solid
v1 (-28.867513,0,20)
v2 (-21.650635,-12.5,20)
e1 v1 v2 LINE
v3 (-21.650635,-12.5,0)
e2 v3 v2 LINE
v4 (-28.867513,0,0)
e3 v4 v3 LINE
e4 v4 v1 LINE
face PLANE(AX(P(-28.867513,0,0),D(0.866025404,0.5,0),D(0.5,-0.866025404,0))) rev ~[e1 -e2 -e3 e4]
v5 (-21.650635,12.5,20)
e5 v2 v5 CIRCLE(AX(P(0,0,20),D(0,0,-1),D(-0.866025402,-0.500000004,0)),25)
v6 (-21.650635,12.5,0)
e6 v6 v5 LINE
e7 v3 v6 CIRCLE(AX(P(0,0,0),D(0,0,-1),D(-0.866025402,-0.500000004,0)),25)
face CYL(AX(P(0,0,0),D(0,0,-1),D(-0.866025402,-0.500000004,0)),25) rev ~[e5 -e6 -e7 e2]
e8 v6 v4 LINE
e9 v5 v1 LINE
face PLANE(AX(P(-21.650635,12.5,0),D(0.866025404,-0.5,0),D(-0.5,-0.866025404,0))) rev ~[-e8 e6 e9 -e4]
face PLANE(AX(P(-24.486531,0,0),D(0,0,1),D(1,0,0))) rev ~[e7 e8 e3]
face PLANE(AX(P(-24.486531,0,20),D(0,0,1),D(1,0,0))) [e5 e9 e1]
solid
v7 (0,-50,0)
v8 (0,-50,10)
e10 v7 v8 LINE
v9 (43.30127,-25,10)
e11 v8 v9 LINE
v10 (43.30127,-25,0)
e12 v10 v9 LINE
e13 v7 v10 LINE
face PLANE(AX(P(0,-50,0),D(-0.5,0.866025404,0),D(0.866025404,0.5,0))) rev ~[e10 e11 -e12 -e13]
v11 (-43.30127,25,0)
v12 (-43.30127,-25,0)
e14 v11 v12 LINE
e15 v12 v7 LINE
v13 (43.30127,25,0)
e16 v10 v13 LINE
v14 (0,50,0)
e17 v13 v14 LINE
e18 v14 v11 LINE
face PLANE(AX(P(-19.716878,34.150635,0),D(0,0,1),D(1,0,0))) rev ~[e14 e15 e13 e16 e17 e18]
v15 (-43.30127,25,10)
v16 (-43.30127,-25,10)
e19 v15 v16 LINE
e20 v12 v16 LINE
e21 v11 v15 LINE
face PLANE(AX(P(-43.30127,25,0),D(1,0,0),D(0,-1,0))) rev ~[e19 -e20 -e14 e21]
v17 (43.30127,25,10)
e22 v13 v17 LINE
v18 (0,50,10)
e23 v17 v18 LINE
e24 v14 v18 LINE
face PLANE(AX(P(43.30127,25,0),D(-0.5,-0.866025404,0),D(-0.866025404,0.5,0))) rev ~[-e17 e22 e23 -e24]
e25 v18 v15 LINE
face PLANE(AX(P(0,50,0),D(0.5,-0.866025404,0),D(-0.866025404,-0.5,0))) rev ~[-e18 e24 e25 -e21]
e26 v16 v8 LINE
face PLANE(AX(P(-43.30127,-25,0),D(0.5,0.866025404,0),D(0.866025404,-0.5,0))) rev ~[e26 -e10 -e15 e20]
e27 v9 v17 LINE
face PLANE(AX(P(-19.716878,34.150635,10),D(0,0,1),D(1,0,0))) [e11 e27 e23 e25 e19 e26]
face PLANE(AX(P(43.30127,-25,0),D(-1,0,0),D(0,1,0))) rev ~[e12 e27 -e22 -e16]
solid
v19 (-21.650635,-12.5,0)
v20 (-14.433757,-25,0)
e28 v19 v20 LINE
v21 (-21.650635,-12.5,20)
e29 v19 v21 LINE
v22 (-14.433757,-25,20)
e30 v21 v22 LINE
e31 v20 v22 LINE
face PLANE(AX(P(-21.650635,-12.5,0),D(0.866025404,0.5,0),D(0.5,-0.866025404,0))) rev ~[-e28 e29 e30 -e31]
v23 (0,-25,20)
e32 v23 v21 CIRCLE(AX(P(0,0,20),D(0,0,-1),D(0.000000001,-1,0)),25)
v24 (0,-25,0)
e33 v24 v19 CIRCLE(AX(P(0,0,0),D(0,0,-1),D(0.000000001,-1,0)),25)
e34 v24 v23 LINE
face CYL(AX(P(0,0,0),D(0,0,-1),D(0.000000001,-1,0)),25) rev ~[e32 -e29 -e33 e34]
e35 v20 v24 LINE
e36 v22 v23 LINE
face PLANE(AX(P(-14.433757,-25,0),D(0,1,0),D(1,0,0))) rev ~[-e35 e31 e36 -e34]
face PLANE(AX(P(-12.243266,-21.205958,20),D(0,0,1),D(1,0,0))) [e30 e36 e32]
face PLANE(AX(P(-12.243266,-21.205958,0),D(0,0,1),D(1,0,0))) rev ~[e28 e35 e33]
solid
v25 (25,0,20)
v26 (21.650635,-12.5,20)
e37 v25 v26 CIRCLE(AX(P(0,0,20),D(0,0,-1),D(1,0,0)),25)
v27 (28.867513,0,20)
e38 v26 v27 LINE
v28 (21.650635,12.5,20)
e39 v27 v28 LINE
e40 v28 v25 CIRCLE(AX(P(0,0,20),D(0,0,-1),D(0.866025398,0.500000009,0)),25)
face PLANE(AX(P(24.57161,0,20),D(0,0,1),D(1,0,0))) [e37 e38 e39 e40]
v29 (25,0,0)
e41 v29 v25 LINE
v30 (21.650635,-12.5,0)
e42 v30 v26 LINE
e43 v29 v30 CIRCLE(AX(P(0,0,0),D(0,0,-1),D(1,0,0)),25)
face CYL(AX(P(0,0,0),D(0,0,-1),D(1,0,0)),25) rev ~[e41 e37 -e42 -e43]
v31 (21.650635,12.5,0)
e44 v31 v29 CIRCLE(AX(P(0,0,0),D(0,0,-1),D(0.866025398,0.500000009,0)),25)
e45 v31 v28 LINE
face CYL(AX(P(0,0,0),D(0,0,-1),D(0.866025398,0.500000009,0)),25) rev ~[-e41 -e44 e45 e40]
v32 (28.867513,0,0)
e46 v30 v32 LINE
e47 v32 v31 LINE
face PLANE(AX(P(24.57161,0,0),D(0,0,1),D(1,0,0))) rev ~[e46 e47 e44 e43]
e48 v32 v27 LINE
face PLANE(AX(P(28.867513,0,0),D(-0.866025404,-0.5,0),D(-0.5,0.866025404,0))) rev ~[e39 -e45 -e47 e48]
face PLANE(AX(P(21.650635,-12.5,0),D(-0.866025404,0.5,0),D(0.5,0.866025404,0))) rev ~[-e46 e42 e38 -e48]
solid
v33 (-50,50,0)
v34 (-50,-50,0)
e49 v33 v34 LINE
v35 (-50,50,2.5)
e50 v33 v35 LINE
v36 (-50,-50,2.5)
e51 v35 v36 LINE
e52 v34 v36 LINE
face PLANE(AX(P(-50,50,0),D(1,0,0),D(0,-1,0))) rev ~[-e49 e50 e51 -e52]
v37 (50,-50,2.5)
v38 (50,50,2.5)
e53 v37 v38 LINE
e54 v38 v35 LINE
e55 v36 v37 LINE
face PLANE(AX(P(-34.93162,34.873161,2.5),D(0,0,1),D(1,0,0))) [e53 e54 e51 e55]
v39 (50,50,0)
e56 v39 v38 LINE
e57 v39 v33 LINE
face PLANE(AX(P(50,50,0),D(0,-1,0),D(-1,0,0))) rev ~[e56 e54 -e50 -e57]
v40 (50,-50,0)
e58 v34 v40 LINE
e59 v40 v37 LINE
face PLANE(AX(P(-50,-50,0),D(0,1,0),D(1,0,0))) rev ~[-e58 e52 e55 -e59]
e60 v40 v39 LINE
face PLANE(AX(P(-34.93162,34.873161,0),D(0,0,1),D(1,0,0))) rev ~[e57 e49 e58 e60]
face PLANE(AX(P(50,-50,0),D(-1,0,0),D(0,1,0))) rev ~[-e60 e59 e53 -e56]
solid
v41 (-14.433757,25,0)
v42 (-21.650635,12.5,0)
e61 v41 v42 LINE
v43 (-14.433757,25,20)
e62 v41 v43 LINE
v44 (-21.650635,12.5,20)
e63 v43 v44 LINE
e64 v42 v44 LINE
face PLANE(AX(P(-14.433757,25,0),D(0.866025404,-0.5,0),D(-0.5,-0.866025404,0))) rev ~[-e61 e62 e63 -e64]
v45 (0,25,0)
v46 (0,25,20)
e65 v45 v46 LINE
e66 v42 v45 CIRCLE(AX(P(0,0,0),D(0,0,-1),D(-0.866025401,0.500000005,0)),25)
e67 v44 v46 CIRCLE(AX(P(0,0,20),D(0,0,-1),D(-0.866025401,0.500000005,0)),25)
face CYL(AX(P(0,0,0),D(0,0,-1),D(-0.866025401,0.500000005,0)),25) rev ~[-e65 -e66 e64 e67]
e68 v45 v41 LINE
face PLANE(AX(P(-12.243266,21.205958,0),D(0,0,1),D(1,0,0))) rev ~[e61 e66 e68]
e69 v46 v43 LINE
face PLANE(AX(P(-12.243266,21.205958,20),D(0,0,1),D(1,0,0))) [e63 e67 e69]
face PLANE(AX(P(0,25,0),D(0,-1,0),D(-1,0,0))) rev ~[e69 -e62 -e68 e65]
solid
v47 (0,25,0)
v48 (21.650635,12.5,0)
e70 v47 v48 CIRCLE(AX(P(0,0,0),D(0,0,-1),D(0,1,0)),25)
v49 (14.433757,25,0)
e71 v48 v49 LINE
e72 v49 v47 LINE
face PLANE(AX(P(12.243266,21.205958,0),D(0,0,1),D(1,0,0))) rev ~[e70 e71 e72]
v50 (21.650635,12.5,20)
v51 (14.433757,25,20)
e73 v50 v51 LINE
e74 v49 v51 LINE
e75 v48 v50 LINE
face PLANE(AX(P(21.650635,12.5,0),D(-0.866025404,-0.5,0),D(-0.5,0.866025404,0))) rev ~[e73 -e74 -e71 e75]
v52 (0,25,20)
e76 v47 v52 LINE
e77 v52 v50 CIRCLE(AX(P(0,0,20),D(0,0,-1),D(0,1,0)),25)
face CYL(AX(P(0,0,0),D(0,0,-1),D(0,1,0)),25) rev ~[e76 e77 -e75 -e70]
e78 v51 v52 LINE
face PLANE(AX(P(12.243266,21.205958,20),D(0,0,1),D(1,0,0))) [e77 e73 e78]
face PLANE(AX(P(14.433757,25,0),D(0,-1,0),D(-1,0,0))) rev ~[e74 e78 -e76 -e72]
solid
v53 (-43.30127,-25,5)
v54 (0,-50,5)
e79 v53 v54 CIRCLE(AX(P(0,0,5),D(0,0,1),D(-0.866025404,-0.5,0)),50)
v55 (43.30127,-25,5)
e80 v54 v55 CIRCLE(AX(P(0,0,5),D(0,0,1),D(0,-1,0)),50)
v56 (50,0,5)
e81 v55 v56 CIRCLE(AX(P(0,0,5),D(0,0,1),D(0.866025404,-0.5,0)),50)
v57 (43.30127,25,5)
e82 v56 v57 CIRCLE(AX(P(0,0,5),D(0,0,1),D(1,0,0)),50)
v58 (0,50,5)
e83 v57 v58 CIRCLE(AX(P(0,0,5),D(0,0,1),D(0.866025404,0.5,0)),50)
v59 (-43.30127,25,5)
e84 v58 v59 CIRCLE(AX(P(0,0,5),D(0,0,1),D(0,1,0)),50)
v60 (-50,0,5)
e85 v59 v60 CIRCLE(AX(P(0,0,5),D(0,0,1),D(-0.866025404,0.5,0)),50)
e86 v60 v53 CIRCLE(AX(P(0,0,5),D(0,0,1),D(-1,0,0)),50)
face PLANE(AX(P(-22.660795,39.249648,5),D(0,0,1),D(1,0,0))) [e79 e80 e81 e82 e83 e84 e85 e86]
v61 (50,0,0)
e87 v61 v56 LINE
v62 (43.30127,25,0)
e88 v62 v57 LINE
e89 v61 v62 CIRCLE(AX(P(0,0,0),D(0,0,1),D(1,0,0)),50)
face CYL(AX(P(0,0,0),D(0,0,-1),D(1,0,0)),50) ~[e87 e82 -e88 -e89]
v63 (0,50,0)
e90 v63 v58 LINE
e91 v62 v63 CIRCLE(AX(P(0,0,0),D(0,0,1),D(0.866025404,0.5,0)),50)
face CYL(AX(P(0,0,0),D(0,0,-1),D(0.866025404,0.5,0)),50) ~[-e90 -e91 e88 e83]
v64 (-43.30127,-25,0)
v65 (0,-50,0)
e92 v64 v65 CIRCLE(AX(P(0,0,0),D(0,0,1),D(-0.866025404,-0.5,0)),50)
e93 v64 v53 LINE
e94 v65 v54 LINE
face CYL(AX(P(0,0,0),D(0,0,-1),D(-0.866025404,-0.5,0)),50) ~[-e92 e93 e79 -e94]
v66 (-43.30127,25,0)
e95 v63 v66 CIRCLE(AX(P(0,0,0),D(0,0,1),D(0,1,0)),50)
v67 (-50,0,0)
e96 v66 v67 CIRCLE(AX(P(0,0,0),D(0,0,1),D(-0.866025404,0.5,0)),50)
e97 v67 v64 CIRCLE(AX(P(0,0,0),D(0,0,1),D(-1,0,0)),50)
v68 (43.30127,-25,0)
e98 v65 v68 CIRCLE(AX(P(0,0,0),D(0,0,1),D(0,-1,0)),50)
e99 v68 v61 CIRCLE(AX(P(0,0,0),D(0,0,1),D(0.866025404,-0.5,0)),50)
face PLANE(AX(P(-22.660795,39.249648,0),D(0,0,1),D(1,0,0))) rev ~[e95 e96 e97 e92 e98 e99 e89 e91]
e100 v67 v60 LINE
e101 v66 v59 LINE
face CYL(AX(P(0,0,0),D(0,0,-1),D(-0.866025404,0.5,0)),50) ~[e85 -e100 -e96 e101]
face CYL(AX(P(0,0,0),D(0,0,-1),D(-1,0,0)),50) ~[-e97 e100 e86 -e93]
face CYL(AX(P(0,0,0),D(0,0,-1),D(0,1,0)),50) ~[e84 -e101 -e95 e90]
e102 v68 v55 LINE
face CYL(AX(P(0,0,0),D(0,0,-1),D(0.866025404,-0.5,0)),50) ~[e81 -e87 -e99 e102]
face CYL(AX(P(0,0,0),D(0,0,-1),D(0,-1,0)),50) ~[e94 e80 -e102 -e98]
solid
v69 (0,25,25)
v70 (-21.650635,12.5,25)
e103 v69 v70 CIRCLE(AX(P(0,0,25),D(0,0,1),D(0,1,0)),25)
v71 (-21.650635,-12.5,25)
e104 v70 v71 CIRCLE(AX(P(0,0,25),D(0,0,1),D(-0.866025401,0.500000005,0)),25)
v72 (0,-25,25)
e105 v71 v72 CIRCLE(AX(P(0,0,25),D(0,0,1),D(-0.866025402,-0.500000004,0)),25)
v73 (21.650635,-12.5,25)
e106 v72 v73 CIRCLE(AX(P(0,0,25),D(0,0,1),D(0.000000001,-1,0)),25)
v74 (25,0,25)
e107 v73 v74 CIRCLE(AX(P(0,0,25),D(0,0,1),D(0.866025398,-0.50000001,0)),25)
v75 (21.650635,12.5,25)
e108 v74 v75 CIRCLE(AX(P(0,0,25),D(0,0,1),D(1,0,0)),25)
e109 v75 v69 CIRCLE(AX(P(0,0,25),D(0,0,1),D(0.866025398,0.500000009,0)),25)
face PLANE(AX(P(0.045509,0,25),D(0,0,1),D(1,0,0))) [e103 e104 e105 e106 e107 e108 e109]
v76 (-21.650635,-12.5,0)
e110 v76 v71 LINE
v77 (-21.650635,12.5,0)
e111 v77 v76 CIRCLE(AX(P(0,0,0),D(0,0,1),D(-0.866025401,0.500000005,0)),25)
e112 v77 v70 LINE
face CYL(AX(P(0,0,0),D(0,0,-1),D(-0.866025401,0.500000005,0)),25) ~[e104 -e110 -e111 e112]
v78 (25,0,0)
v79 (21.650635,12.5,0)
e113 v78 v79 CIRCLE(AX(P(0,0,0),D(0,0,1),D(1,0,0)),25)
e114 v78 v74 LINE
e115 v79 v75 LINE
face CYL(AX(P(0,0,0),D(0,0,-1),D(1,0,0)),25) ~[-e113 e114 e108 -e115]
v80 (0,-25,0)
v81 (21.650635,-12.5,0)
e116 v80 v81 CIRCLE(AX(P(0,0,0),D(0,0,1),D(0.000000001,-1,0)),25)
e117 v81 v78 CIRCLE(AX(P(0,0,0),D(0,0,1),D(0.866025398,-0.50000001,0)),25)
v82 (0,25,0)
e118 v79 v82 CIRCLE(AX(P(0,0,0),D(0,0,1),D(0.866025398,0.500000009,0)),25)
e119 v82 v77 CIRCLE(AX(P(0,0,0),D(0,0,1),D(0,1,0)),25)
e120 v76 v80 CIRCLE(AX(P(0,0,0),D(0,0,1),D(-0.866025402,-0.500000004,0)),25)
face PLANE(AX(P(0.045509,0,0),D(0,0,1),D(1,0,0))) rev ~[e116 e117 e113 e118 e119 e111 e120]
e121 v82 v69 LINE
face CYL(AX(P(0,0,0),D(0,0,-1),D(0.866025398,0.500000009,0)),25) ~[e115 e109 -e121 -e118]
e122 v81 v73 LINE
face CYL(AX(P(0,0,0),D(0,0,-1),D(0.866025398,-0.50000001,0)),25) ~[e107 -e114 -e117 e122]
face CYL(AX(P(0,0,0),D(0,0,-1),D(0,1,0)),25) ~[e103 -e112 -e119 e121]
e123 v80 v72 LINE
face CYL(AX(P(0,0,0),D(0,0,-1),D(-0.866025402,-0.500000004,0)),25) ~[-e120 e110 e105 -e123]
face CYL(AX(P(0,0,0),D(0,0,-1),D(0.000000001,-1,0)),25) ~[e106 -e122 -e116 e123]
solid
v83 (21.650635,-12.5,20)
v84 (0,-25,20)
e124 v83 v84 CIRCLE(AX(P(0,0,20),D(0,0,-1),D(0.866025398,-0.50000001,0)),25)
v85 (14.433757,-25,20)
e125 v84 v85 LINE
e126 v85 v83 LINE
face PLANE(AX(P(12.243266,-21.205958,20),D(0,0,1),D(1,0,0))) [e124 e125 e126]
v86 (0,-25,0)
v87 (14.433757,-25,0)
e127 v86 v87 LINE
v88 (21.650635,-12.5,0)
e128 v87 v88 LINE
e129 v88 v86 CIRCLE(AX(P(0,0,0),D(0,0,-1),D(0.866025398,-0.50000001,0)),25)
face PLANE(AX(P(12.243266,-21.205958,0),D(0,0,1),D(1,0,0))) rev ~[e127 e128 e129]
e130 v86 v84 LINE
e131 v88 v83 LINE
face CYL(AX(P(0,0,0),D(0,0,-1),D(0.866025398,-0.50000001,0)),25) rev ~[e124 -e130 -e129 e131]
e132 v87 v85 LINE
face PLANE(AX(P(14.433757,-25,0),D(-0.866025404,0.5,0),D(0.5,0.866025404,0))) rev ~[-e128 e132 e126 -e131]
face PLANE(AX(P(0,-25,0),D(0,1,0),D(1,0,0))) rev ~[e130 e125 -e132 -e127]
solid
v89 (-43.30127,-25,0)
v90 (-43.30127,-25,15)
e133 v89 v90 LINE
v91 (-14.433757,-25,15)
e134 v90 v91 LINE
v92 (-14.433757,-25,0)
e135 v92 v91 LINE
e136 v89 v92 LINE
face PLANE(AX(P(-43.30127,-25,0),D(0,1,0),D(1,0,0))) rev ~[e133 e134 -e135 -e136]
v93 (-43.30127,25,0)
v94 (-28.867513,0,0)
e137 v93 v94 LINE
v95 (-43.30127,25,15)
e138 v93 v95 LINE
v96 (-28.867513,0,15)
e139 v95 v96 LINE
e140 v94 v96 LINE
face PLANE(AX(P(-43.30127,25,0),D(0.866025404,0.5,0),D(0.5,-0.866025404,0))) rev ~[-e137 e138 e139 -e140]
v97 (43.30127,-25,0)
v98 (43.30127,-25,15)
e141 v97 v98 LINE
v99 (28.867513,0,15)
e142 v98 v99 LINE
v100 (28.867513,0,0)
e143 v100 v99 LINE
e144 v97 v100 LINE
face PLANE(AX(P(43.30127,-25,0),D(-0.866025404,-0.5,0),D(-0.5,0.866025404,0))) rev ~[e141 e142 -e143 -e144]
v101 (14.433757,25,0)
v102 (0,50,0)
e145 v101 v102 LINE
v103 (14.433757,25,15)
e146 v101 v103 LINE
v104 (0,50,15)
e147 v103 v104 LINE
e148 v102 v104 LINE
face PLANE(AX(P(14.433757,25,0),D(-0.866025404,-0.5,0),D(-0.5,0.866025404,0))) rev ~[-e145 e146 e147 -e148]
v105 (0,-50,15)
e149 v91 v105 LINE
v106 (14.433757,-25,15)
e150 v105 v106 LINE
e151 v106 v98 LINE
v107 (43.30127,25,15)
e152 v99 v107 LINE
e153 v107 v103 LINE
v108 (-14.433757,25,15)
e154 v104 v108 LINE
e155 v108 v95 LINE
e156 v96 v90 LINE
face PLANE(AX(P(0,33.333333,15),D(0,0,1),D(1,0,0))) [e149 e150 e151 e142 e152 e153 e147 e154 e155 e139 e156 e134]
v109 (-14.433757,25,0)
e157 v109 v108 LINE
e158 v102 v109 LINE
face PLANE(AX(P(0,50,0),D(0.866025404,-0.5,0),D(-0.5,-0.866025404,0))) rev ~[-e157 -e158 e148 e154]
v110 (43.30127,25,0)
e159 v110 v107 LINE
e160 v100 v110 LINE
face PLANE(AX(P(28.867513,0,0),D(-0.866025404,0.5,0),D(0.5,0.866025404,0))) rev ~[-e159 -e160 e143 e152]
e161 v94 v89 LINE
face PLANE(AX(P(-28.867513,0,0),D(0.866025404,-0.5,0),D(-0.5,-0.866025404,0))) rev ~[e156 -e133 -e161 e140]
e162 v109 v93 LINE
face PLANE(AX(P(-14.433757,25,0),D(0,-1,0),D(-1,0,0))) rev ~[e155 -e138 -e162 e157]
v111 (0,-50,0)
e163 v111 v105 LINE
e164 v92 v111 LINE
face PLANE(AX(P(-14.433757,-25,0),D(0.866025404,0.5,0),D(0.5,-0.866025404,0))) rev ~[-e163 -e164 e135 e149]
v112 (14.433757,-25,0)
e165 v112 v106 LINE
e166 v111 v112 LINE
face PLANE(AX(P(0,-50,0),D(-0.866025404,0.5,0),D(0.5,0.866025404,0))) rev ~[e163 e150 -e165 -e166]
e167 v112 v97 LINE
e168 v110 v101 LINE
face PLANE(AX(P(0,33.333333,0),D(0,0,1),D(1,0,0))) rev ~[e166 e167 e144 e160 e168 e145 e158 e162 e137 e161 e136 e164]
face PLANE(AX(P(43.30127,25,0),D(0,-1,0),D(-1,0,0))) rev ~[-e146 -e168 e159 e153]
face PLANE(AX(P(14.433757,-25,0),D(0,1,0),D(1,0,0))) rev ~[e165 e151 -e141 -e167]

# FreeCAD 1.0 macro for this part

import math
import FreeCAD as App
import Part
import Sketcher
Q = App.Units.Quantity


def add_polygon(sketch, points):
    """Adds a closed chain of lines whose ends are joined by coincident constraints."""
    first, n = sketch.GeometryCount, len(points)
    for a, b in zip(points, points[1:] + points[:1]):
        sketch.addGeometry(Part.LineSegment(App.Vector(*a, 0), App.Vector(*b, 0)), False)
    for i in range(n):
        sketch.addConstraint(Sketcher.Constraint("Coincident", first + i, 2, first + (i + 1) % n, 1))

doc = App.newDocument("Part")
params = doc.addObject("Spreadsheet::Sheet", "Params")
for row, (alias, value) in enumerate([
    ("sketch1_radius", "25 mm"),
    ("pad1_length", "25 mm"),
    ("sketch2_radius", "25 mm"),
    ("pad2_length", "20 mm"),
    ("sketch3_radius", "25 mm"),
    ("pad3_length", "20 mm"),
    ("sketch4_radius", "25 mm"),
    ("pad4_length", "20 mm"),
    ("sketch5_radius", "25 mm"),
    ("pad5_length", "20 mm"),
    ("sketch6_radius", "25 mm"),
    ("pad6_length", "20 mm"),
    ("sketch7_radius", "25 mm"),
    ("pad7_length", "20 mm"),
    ("pad8_length", "15 mm"),
    ("sketch9_height", "50 mm"),
    ("sketch9_length", "50 mm"),
    ("pad9_length", "10 mm"),
    ("sketch10_radius", "50 mm"),
    ("pad10_length", "5 mm"),
    ("sketch11_width", "100 mm"),
    ("pad11_length", "2.5 mm"),
], start=1):
    params.set(f"A{row}", alias)
    params.set(f"B{row}", "=" + value)
    params.setAlias(f"B{row}", alias)

body = doc.addObject("PartDesign::Body", "Body")

# Sketch on XY plane
sketch1 = doc.addObject("Sketcher::SketchObject", "Sketch")
body.addObject(sketch1)
sketch1.AttachmentSupport = (doc.XY_Plane, [""])
sketch1.MapMode = "FlatFace"
sketch1.addGeometry(Part.ArcOfCircle(Part.Circle(App.Vector(0, 0, 0), App.Vector(0, 0, 1), 25), math.radians(0), math.radians(30)), False)
sketch1.addGeometry(Part.ArcOfCircle(Part.Circle(App.Vector(0, 0, 0), App.Vector(0, 0, 1), 25), math.radians(30), math.radians(90)), False)
sketch1.addGeometry(Part.ArcOfCircle(Part.Circle(App.Vector(0, 0, 0), App.Vector(0, 0, 1), 25), math.radians(90), math.radians(150)), False)
sketch1.addGeometry(Part.ArcOfCircle(Part.Circle(App.Vector(0, 0, 0), App.Vector(0, 0, 1), 25), math.radians(150), math.radians(210)), False)
sketch1.addGeometry(Part.ArcOfCircle(Part.Circle(App.Vector(0, 0, 0), App.Vector(0, 0, 1), 25), math.radians(-150), math.radians(-90)), False)
sketch1.addGeometry(Part.ArcOfCircle(Part.Circle(App.Vector(0, 0, 0), App.Vector(0, 0, 1), 25), math.radians(-90), math.radians(-30)), False)
sketch1.addGeometry(Part.ArcOfCircle(Part.Circle(App.Vector(0, 0, 0), App.Vector(0, 0, 1), 25), math.radians(-30), math.radians(0)), False)
sketch1.addConstraint(Sketcher.Constraint("Tangent", 0, 2, 1, 1))
sketch1.addConstraint(Sketcher.Constraint("Tangent", 1, 2, 2, 1))
sketch1.addConstraint(Sketcher.Constraint("Tangent", 2, 2, 3, 1))
sketch1.addConstraint(Sketcher.Constraint("Tangent", 3, 2, 4, 1))
sketch1.addConstraint(Sketcher.Constraint("Tangent", 4, 2, 5, 1))
sketch1.addConstraint(Sketcher.Constraint("Tangent", 5, 2, 6, 1))
sketch1.addConstraint(Sketcher.Constraint("Tangent", 6, 2, 0, 1))
sketch1.addConstraint(Sketcher.Constraint("Coincident", 0, 3, -1, 1))
sketch1.addConstraint(Sketcher.Constraint("Coincident", 2, 3, -1, 1))
sketch1.addConstraint(Sketcher.Constraint("Coincident", 4, 3, -1, 1))
sketch1.addConstraint(Sketcher.Constraint("PointOnObject", 1, 2, -2))
sketch1.addConstraint(Sketcher.Constraint("PointOnObject", 4, 2, -2))
sketch1.addConstraint(Sketcher.Constraint("PointOnObject", 6, 2, -1))
sketch1.addConstraint(Sketcher.Constraint("Horizontal", 0, 2, 2, 2))
sketch1.addConstraint(Sketcher.Constraint("Horizontal", 3, 2, 5, 2))
sketch1.addConstraint(Sketcher.Constraint("Vertical", 2, 2, 3, 2))
sketch1.addConstraint(Sketcher.Constraint("Radius", 0, 25.0))
sketch1.addConstraint(Sketcher.Constraint("DistanceY", -1, 1, 0, 2, 12.5))
sketch1.setExpression("Constraints[16]", "Params.sketch1_radius")
pad1 = doc.addObject("PartDesign::Pad", "Pad")
body.addObject(pad1)
pad1.Profile = sketch1
pad1.setExpression("Length", "Params.pad1_length")
body2 = doc.addObject("PartDesign::Body", "Body001")

# Sketch on XY plane
sketch2 = doc.addObject("Sketcher::SketchObject", "Sketch001")
body2.addObject(sketch2)
sketch2.AttachmentSupport = (doc.getObject("XY_Plane001"), [""])
sketch2.MapMode = "FlatFace"
sketch2.addGeometry(Part.LineSegment(App.Vector(0, 25, 0), App.Vector(-14, 25, 0)), False)
sketch2.addGeometry(Part.LineSegment(App.Vector(-14, 25, 0), App.Vector(-22, 13, 0)), False)
sketch2.addGeometry(Part.ArcOfCircle(Part.Circle(App.Vector(0, 0, 0), App.Vector(0, 0, 1), 25), math.radians(90), math.radians(150)), False)
sketch2.addConstraint(Sketcher.Constraint("Coincident", 0, 2, 1, 1))
sketch2.addConstraint(Sketcher.Constraint("Tangent", 1, 2, 2, 2))
sketch2.addConstraint(Sketcher.Constraint("Tangent", 2, 1, 0, 1))
sketch2.addConstraint(Sketcher.Constraint("Horizontal", 0))
sketch2.addConstraint(Sketcher.Constraint("Coincident", 2, 3, -1, 1))
sketch2.addConstraint(Sketcher.Constraint("Radius", 2, 25.0))
sketch2.addConstraint(Sketcher.Constraint("Angle", 1, Q("-120 deg")))
sketch2.setExpression("Constraints[5]", "Params.sketch2_radius")
pad2 = doc.addObject("PartDesign::Pad", "Pad001")
body2.addObject(pad2)
pad2.Profile = sketch2
pad2.setExpression("Length", "Params.pad2_length")
body3 = doc.addObject("PartDesign::Body", "Body002")

# Sketch on XY plane
sketch3 = doc.addObject("Sketcher::SketchObject", "Sketch002")
body3.addObject(sketch3)
sketch3.AttachmentSupport = (doc.getObject("XY_Plane002"), [""])
sketch3.MapMode = "FlatFace"
sketch3.addGeometry(Part.LineSegment(App.Vector(22, -13, 0), App.Vector(29, 0, 0)), False)
sketch3.addGeometry(Part.LineSegment(App.Vector(29, 0, 0), App.Vector(22, 13, 0)), False)
sketch3.addGeometry(Part.ArcOfCircle(Part.Circle(App.Vector(0, 0, 0), App.Vector(0, 0, 1), 25), math.radians(0), math.radians(30)), False)
sketch3.addGeometry(Part.ArcOfCircle(Part.Circle(App.Vector(0, 0, 0), App.Vector(0, 0, 1), 25), math.radians(-30), math.radians(0)), False)
sketch3.addConstraint(Sketcher.Constraint("Coincident", 0, 2, 1, 1))
sketch3.addConstraint(Sketcher.Constraint("Tangent", 1, 2, 2, 2))
sketch3.addConstraint(Sketcher.Constraint("Tangent", 2, 1, 3, 2))
sketch3.addConstraint(Sketcher.Constraint("Tangent", 3, 1, 0, 1))
sketch3.addConstraint(Sketcher.Constraint("Coincident", 2, 3, -1, 1))
sketch3.addConstraint(Sketcher.Constraint("Equal", 2, 3))
sketch3.addConstraint(Sketcher.Constraint("PointOnObject", 0, 2, -1))
sketch3.addConstraint(Sketcher.Constraint("PointOnObject", 2, 1, -1))
sketch3.addConstraint(Sketcher.Constraint("Radius", 2, 25.0))
sketch3.addConstraint(Sketcher.Constraint("Angle", 0, Q("60 deg")))
sketch3.setExpression("Constraints[8]", "Params.sketch3_radius")
pad3 = doc.addObject("PartDesign::Pad", "Pad002")
body3.addObject(pad3)
pad3.Profile = sketch3
pad3.setExpression("Length", "Params.pad3_length")
body4 = doc.addObject("PartDesign::Body", "Body003")

# Sketch on XY plane
sketch4 = doc.addObject("Sketcher::SketchObject", "Sketch003")
body4.addObject(sketch4)
sketch4.AttachmentSupport = (doc.getObject("XY_Plane003"), [""])
sketch4.MapMode = "FlatFace"
sketch4.addGeometry(Part.LineSegment(App.Vector(22, 13, 0), App.Vector(14, 25, 0)), False)
sketch4.addGeometry(Part.LineSegment(App.Vector(14, 25, 0), App.Vector(0, 25, 0)), False)
sketch4.addGeometry(Part.ArcOfCircle(Part.Circle(App.Vector(0, 0, 0), App.Vector(0, 0, 1), 25), math.radians(30), math.radians(90)), False)
sketch4.addConstraint(Sketcher.Constraint("Coincident", 0, 2, 1, 1))
sketch4.addConstraint(Sketcher.Constraint("Tangent", 1, 2, 2, 2))
sketch4.addConstraint(Sketcher.Constraint("Tangent", 2, 1, 0, 1))
sketch4.addConstraint(Sketcher.Constraint("Horizontal", 1))
sketch4.addConstraint(Sketcher.Constraint("Coincident", 2, 3, -1, 1))
sketch4.addConstraint(Sketcher.Constraint("Radius", 2, 25.0))
sketch4.addConstraint(Sketcher.Constraint("Angle", 0, Q("120 deg")))
sketch4.setExpression("Constraints[5]", "Params.sketch4_radius")
pad4 = doc.addObject("PartDesign::Pad", "Pad003")
body4.addObject(pad4)
pad4.Profile = sketch4
pad4.setExpression("Length", "Params.pad4_length")
body5 = doc.addObject("PartDesign::Body", "Body004")

# Sketch on XY plane
sketch5 = doc.addObject("Sketcher::SketchObject", "Sketch004")
body5.addObject(sketch5)
sketch5.AttachmentSupport = (doc.getObject("XY_Plane004"), [""])
sketch5.MapMode = "FlatFace"
sketch5.addGeometry(Part.LineSegment(App.Vector(0, -25, 0), App.Vector(14, -25, 0)), False)
sketch5.addGeometry(Part.LineSegment(App.Vector(14, -25, 0), App.Vector(22, -13, 0)), False)
sketch5.addGeometry(Part.ArcOfCircle(Part.Circle(App.Vector(0, 0, 0), App.Vector(0, 0, 1), 25), math.radians(-90), math.radians(-30)), False)
sketch5.addConstraint(Sketcher.Constraint("Coincident", 0, 2, 1, 1))
sketch5.addConstraint(Sketcher.Constraint("Tangent", 1, 2, 2, 2))
sketch5.addConstraint(Sketcher.Constraint("Tangent", 2, 1, 0, 1))
sketch5.addConstraint(Sketcher.Constraint("Horizontal", 0))
sketch5.addConstraint(Sketcher.Constraint("Coincident", 2, 3, -1, 1))
sketch5.addConstraint(Sketcher.Constraint("Radius", 2, 25.0))
sketch5.addConstraint(Sketcher.Constraint("Angle", 1, Q("60 deg")))
sketch5.setExpression("Constraints[5]", "Params.sketch5_radius")
pad5 = doc.addObject("PartDesign::Pad", "Pad004")
body5.addObject(pad5)
pad5.Profile = sketch5
pad5.setExpression("Length", "Params.pad5_length")
body6 = doc.addObject("PartDesign::Body", "Body005")

# Sketch on XY plane
sketch6 = doc.addObject("Sketcher::SketchObject", "Sketch005")
body6.addObject(sketch6)
sketch6.AttachmentSupport = (doc.getObject("XY_Plane005"), [""])
sketch6.MapMode = "FlatFace"
sketch6.addGeometry(Part.LineSegment(App.Vector(-21.650635, -12.5, 0), App.Vector(-14.433757, -25, 0)), False)
sketch6.addGeometry(Part.LineSegment(App.Vector(-14.433757, -25, 0), App.Vector(0, -25, 0)), False)
sketch6.addGeometry(Part.ArcOfCircle(Part.Circle(App.Vector(0, 0, 0), App.Vector(0, 0, 1), 25), math.radians(-150), math.radians(-90)), False)
sketch6.addConstraint(Sketcher.Constraint("Coincident", 0, 2, 1, 1))
sketch6.addConstraint(Sketcher.Constraint("Tangent", 1, 2, 2, 2))
sketch6.addConstraint(Sketcher.Constraint("Tangent", 2, 1, 0, 1))
sketch6.addConstraint(Sketcher.Constraint("Horizontal", 1))
sketch6.addConstraint(Sketcher.Constraint("Coincident", 2, 3, -1, 1))
sketch6.addConstraint(Sketcher.Constraint("Radius", 2, 25.0))
sketch6.addConstraint(Sketcher.Constraint("Angle", 0, Q("-60 deg")))
sketch6.setExpression("Constraints[5]", "Params.sketch6_radius")
pad6 = doc.addObject("PartDesign::Pad", "Pad005")
body6.addObject(pad6)
pad6.Profile = sketch6
pad6.setExpression("Length", "Params.pad6_length")
body7 = doc.addObject("PartDesign::Body", "Body006")

# Sketch on XY plane
sketch7 = doc.addObject("Sketcher::SketchObject", "Sketch006")
body7.addObject(sketch7)
sketch7.AttachmentSupport = (doc.getObject("XY_Plane006"), [""])
sketch7.MapMode = "FlatFace"
sketch7.addGeometry(Part.LineSegment(App.Vector(-22, 13, 0), App.Vector(-29, 0, 0)), False)
sketch7.addGeometry(Part.LineSegment(App.Vector(-29, 0, 0), App.Vector(-22, -13, 0)), False)
sketch7.addGeometry(Part.ArcOfCircle(Part.Circle(App.Vector(0, 0, 0), App.Vector(0, 0, 1), 25), math.radians(150), math.radians(210)), False)
sketch7.addConstraint(Sketcher.Constraint("Coincident", 0, 2, 1, 1))
sketch7.addConstraint(Sketcher.Constraint("Tangent", 1, 2, 2, 2))
sketch7.addConstraint(Sketcher.Constraint("Tangent", 2, 1, 0, 1))
sketch7.addConstraint(Sketcher.Constraint("Coincident", 2, 3, -1, 1))
sketch7.addConstraint(Sketcher.Constraint("PointOnObject", 0, 2, -1))
sketch7.addConstraint(Sketcher.Constraint("Radius", 2, 25.0))
sketch7.addConstraint(Sketcher.Constraint("Angle", 0, Q("-120 deg")))
sketch7.setExpression("Constraints[5]", "Params.sketch7_radius")
pad7 = doc.addObject("PartDesign::Pad", "Pad006")
body7.addObject(pad7)
pad7.Profile = sketch7
pad7.setExpression("Length", "Params.pad7_length")
body8 = doc.addObject("PartDesign::Body", "Body007")

# Sketch on XY plane
sketch8 = doc.addObject("Sketcher::SketchObject", "Sketch007")
body8.addObject(sketch8)
sketch8.AttachmentSupport = (doc.getObject("XY_Plane007"), [""])
sketch8.MapMode = "FlatFace"
add_polygon(sketch8, [(-43, 25), (-29, 0), (-43, -25), (-14, -25), (0, -50), (14, -25), (43, -25), (29, 0), (43, 25), (14, 25), (0, 50), (-14, 25)])  # lines 0-11
sketch8.addConstraint(Sketcher.Constraint("Horizontal", 2))
sketch8.addConstraint(Sketcher.Constraint("Horizontal", 5))
sketch8.addConstraint(Sketcher.Constraint("Horizontal", 8))
sketch8.addConstraint(Sketcher.Constraint("Horizontal", 11))
sketch8.addConstraint(Sketcher.Constraint("Symmetric", 0, 2, 6, 2, -1, 1))
sketch8.addConstraint(Sketcher.Constraint("Symmetric", 1, 2, 7, 2, -1, 1))
sketch8.addConstraint(Sketcher.Constraint("Symmetric", 3, 2, 9, 2, -1, 1))
sketch8.addConstraint(Sketcher.Constraint("Symmetric", 4, 2, 10, 2, -1, 1))
sketch8.addConstraint(Sketcher.Constraint("Symmetric", 2, 2, 4, 2, -2))
sketch8.addConstraint(Sketcher.Constraint("PointOnObject", 0, 2, -1))
sketch8.addConstraint(Sketcher.Constraint("PointOnObject", 3, 2, -2))
sketch8.addConstraint(Sketcher.Constraint("Parallel", 0, 3))
sketch8.addConstraint(Sketcher.Constraint("Parallel", 1, 4))
sketch8.addConstraint(Sketcher.Constraint("Parallel", 3, 6))
sketch8.addConstraint(Sketcher.Constraint("Parallel", 6, 9))
sketch8.addConstraint(Sketcher.Constraint("Equal", 1, 3))
sketch8.addConstraint(Sketcher.Constraint("Angle", 0, Q("-60 deg")))
sketch8.addConstraint(Sketcher.Constraint("DistanceY", 1, 2, -1, 1, 25.0))
sketch8.addConstraint(Sketcher.Constraint("DistanceX", 2, 1, 2, 2, 28.867513))
pad8 = doc.addObject("PartDesign::Pad", "Pad007")
body8.addObject(pad8)
pad8.Profile = sketch8
pad8.setExpression("Length", "Params.pad8_length")
body9 = doc.addObject("PartDesign::Body", "Body008")

# Sketch on XY plane
sketch9 = doc.addObject("Sketcher::SketchObject", "Sketch008")
body9.addObject(sketch9)
sketch9.AttachmentSupport = (doc.getObject("XY_Plane008"), [""])
sketch9.MapMode = "FlatFace"
add_polygon(sketch9, [(-43, 25), (-43, -25), (0, -50), (43, -25), (43, 25), (0, 50)])  # lines 0-5
sketch9.addConstraint(Sketcher.Constraint("Vertical", 0))
sketch9.addConstraint(Sketcher.Constraint("Vertical", 3))
sketch9.addConstraint(Sketcher.Constraint("Symmetric", 0, 2, 3, 2, -1, 1))
sketch9.addConstraint(Sketcher.Constraint("Symmetric", 1, 2, 4, 2, -1, 1))
sketch9.addConstraint(Sketcher.Constraint("PointOnObject", 1, 2, -2))
sketch9.addConstraint(Sketcher.Constraint("Parallel", 2, 5))
sketch9.addConstraint(Sketcher.Constraint("Horizontal", 0, 2, 2, 2))
sketch9.addConstraint(Sketcher.Constraint("DistanceY", 0, 2, 0, 1, 50.0))
sketch9.addConstraint(Sketcher.Constraint("Angle", 1, Q("-30 deg")))
sketch9.addConstraint(Sketcher.Constraint("Distance", 1, 50.0))
sketch9.setExpression("Constraints[13]", "Params.sketch9_height")
sketch9.setExpression("Constraints[15]", "Params.sketch9_length")
pad9 = doc.addObject("PartDesign::Pad", "Pad008")
body9.addObject(pad9)
pad9.Profile = sketch9
pad9.setExpression("Length", "Params.pad9_length")
body10 = doc.addObject("PartDesign::Body", "Body009")

# Sketch on XY plane
sketch10 = doc.addObject("Sketcher::SketchObject", "Sketch009")
body10.addObject(sketch10)
sketch10.AttachmentSupport = (doc.getObject("XY_Plane009"), [""])
sketch10.MapMode = "FlatFace"
sketch10.addGeometry(Part.ArcOfCircle(Part.Circle(App.Vector(0, 0, 0), App.Vector(0, 0, 1), 50), math.radians(90), math.radians(150)), False)
sketch10.addGeometry(Part.ArcOfCircle(Part.Circle(App.Vector(0, 0, 0), App.Vector(0, 0, 1), 50), math.radians(150), math.radians(180)), False)
sketch10.addGeometry(Part.ArcOfCircle(Part.Circle(App.Vector(0, 0, 0), App.Vector(0, 0, 1), 50), math.radians(180), math.radians(210)), False)
sketch10.addGeometry(Part.ArcOfCircle(Part.Circle(App.Vector(0, 0, 0), App.Vector(0, 0, 1), 50), math.radians(-150), math.radians(-90)), False)
sketch10.addGeometry(Part.ArcOfCircle(Part.Circle(App.Vector(0, 0, 0), App.Vector(0, 0, 1), 50), math.radians(-90), math.radians(-30)), False)
sketch10.addGeometry(Part.ArcOfCircle(Part.Circle(App.Vector(0, 0, 0), App.Vector(0, 0, 1), 50), math.radians(-30), math.radians(0)), False)
sketch10.addGeometry(Part.ArcOfCircle(Part.Circle(App.Vector(0, 0, 0), App.Vector(0, 0, 1), 50), math.radians(0), math.radians(30)), False)
sketch10.addGeometry(Part.ArcOfCircle(Part.Circle(App.Vector(0, 0, 0), App.Vector(0, 0, 1), 50), math.radians(30), math.radians(90)), False)
sketch10.addConstraint(Sketcher.Constraint("Tangent", 0, 2, 1, 1))
sketch10.addConstraint(Sketcher.Constraint("Tangent", 1, 2, 2, 1))
sketch10.addConstraint(Sketcher.Constraint("Tangent", 2, 2, 3, 1))
sketch10.addConstraint(Sketcher.Constraint("Tangent", 3, 2, 4, 1))
sketch10.addConstraint(Sketcher.Constraint("Tangent", 4, 2, 5, 1))
sketch10.addConstraint(Sketcher.Constraint("Tangent", 5, 2, 6, 1))
sketch10.addConstraint(Sketcher.Constraint("Tangent", 6, 2, 7, 1))
sketch10.addConstraint(Sketcher.Constraint("Tangent", 7, 2, 0, 1))
sketch10.addConstraint(Sketcher.Constraint("Coincident", 0, 3, -1, 1))
sketch10.addConstraint(Sketcher.Constraint("Coincident", 2, 3, -1, 1))
sketch10.addConstraint(Sketcher.Constraint("Coincident", 4, 3, -1, 1))
sketch10.addConstraint(Sketcher.Constraint("Equal", 4, 5))
sketch10.addConstraint(Sketcher.Constraint("PointOnObject", 1, 2, -1))
sketch10.addConstraint(Sketcher.Constraint("PointOnObject", 3, 2, -2))
sketch10.addConstraint(Sketcher.Constraint("PointOnObject", 5, 2, -1))
sketch10.addConstraint(Sketcher.Constraint("PointOnObject", 7, 2, -2))
sketch10.addConstraint(Sketcher.Constraint("Horizontal", 2, 2, 4, 2))
sketch10.addConstraint(Sketcher.Constraint("Horizontal", 0, 2, 6, 2))
sketch10.addConstraint(Sketcher.Constraint("Vertical", 0, 2, 2, 2))
sketch10.addConstraint(Sketcher.Constraint("Radius", 0, 50.0))
sketch10.addConstraint(Sketcher.Constraint("DistanceY", -1, 1, 0, 2, 25.0))
sketch10.setExpression("Constraints[19]", "Params.sketch10_radius")
pad10 = doc.addObject("PartDesign::Pad", "Pad009")
body10.addObject(pad10)
pad10.Profile = sketch10
pad10.setExpression("Length", "Params.pad10_length")
body11 = doc.addObject("PartDesign::Body", "Body010")

# Sketch on XY plane
sketch11 = doc.addObject("Sketcher::SketchObject", "Sketch010")
body11.addObject(sketch11)
sketch11.AttachmentSupport = (doc.getObject("XY_Plane010"), [""])
sketch11.MapMode = "FlatFace"
add_polygon(sketch11, [(-50, -50), (50, -50), (50, 50), (-50, 50)])  # lines 0-3
sketch11.addConstraint(Sketcher.Constraint("Horizontal", 0))
sketch11.addConstraint(Sketcher.Constraint("Vertical", 1))
sketch11.addConstraint(Sketcher.Constraint("Horizontal", 2))
sketch11.addConstraint(Sketcher.Constraint("Vertical", 3))
sketch11.addConstraint(Sketcher.Constraint("Symmetric", 0, 2, 2, 2, -1, 1))
sketch11.addConstraint(Sketcher.Constraint("Equal", 2, 1))
sketch11.addConstraint(Sketcher.Constraint("DistanceX", 0, 1, 0, 2, 100.0))
sketch11.setExpression("Constraints[10]", "Params.sketch11_width")
pad11 = doc.addObject("PartDesign::Pad", "Pad010")
body11.addObject(pad11)
pad11.Profile = sketch11
pad11.setExpression("Length", "Params.pad11_length")

doc.recompute()
